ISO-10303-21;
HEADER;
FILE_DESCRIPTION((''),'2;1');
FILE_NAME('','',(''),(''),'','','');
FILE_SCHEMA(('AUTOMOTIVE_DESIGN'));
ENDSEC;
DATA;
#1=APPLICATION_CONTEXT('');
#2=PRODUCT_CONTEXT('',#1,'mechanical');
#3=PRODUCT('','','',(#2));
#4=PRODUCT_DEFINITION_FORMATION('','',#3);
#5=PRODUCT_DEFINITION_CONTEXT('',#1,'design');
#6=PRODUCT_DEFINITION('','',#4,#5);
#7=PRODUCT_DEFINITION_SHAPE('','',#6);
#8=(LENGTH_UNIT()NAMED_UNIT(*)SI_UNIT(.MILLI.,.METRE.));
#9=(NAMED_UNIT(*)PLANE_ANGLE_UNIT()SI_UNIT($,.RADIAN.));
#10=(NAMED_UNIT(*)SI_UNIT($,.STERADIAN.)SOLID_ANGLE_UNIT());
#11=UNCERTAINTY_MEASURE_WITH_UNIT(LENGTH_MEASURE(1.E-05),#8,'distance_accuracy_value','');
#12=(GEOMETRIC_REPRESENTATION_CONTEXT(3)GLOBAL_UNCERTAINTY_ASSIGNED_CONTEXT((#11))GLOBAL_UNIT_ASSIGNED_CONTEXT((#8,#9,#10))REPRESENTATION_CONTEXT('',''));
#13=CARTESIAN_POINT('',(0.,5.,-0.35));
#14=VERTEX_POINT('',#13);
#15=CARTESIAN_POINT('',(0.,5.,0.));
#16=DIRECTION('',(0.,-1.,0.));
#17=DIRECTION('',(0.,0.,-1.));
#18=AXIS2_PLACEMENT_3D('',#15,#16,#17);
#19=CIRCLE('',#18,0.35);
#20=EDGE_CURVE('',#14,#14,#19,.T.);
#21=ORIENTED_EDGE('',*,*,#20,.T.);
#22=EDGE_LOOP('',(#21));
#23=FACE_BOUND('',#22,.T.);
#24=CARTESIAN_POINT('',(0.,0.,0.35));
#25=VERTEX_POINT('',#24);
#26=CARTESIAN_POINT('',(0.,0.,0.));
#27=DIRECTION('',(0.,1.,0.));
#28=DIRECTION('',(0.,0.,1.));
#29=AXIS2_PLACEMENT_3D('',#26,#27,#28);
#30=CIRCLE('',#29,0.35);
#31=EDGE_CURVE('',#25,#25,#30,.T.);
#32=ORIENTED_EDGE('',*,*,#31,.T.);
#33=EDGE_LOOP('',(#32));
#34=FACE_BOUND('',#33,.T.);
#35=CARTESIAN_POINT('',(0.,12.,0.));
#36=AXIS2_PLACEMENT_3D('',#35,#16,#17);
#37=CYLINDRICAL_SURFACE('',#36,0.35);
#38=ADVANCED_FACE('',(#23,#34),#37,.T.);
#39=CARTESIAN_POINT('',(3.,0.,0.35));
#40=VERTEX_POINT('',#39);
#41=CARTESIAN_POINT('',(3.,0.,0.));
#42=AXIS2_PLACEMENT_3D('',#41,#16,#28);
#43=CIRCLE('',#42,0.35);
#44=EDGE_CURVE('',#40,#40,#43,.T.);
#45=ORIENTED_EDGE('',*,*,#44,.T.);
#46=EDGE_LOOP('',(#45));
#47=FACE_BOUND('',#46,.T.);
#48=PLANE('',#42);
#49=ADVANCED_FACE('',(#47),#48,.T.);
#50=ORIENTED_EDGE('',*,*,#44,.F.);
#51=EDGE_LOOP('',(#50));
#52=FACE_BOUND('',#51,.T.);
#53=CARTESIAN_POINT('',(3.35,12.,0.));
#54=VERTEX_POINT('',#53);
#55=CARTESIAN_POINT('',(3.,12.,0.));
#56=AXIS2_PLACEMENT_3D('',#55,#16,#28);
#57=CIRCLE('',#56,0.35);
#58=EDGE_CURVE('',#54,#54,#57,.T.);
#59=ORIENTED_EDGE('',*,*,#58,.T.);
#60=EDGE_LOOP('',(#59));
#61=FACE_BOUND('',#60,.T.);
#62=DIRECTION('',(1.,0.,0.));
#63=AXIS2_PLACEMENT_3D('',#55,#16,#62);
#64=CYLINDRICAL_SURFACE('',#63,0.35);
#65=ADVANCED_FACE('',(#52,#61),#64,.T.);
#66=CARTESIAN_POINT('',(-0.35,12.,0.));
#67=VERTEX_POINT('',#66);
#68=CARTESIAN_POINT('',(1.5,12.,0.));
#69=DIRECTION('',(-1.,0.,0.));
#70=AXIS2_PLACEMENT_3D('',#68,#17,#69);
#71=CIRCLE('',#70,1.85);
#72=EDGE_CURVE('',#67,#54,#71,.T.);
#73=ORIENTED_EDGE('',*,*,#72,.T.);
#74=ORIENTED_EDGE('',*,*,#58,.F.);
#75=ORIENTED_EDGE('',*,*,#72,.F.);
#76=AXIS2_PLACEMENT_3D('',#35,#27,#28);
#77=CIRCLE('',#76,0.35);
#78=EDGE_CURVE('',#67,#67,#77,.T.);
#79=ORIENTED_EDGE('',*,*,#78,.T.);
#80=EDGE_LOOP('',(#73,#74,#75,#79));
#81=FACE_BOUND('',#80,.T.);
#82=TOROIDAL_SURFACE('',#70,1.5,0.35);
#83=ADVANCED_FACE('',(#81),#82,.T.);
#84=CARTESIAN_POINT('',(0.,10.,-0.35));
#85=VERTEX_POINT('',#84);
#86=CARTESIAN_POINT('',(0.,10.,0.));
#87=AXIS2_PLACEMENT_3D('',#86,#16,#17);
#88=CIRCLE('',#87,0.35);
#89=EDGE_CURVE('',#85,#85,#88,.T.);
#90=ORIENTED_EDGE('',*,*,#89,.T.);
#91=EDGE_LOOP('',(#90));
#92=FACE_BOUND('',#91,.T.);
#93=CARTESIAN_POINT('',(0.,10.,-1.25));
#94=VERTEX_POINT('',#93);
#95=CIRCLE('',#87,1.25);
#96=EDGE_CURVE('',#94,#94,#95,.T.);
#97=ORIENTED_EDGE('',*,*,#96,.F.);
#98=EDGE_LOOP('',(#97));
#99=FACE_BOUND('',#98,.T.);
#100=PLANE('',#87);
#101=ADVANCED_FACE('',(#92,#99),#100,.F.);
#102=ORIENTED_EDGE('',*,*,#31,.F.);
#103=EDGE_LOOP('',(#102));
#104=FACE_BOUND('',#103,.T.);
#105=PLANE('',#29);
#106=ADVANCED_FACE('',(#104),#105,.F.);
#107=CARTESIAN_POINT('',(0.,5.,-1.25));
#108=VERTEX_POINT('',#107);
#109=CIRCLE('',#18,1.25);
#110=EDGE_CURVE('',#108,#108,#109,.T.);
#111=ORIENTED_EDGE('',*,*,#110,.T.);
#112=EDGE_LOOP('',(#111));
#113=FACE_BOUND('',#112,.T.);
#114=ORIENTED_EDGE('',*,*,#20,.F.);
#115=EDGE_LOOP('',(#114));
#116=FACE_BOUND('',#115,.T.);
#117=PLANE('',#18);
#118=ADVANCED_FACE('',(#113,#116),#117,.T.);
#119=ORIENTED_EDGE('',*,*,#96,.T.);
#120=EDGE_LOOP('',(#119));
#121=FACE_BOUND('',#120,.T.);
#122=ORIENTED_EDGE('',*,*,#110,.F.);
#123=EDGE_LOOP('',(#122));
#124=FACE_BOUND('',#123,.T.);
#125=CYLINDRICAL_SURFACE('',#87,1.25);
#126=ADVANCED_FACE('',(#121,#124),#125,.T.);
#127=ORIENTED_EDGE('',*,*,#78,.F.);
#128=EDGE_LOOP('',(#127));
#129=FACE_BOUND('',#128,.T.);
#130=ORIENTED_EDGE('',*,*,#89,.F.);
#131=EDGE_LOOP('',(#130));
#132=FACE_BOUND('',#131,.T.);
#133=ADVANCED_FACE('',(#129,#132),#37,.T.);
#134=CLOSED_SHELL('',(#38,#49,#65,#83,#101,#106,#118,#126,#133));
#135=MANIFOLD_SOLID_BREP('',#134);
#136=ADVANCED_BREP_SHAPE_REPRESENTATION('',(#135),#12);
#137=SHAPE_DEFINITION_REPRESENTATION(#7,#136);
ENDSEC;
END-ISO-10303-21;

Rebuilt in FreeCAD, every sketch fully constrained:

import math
import FreeCAD as App
import Part
import Sketcher

V = App.Vector

doc = App.newDocument("Part")
params = doc.addObject("Spreadsheet::Sheet", "Params")
for row, (alias, value) in enumerate([
    ("sketch1_diameter", "0.7 mm"),
    ("sketch2_radius", "1.5 mm"),
    ("sketch2_height", "12 mm"),
    ("sketch3_diameter", "2.5 mm"),
    ("pad1_length", "5 mm"),
], start=1):
    params.set(f"A{row}", alias)
    params.set(f"B{row}", "=" + value)
    params.setAlias(f"B{row}", alias)

body = doc.addObject("PartDesign::Body", "Body")

# Sketch on XZ plane
sketch1 = body.newObject("Sketcher::SketchObject", "Sketch")
sketch1.AttachmentSupport = (doc.getObject("XZ_Plane"), [""])
sketch1.MapMode = "FlatFace"
sketch1.addGeometry(Part.Circle(V(0, 0, 0), V(0, 0, 1), 0.35), False)
sketch1.addConstraint(Sketcher.Constraint("Coincident", 0, 3, -1, 1))
sketch1.addConstraint(Sketcher.Constraint("Diameter", 0, 0.7))
sketch1.setExpression("Constraints[1]", "Params.sketch1_diameter")

# Sketch on XY plane
sketch2 = body.newObject("Sketcher::SketchObject", "Sketch001")
sketch2.AttachmentSupport = (doc.getObject("XY_Plane"), [""])
sketch2.MapMode = "FlatFace"
sketch2.addGeometry(Part.LineSegment(V(0, 0, 0), V(0, 12, 0)), False)
sketch2.addGeometry(Part.ArcOfCircle(Part.Circle(V(1.5, 12, 0), V(0, 0, 1), 1.5), math.radians(0), math.radians(180)), False)
sketch2.addGeometry(Part.LineSegment(V(3, 12, 0), V(3, 0, 0)), False)
sketch2.addConstraint(Sketcher.Constraint("Tangent", 0, 2, 1, 2))
sketch2.addConstraint(Sketcher.Constraint("Tangent", 1, 1, 2, 1))
sketch2.addConstraint(Sketcher.Constraint("Vertical", 0))
sketch2.addConstraint(Sketcher.Constraint("Vertical", 2))
sketch2.addConstraint(Sketcher.Constraint("Coincident", 0, 1, -1, 1))
sketch2.addConstraint(Sketcher.Constraint("PointOnObject", 2, 2, -1))
sketch2.addConstraint(Sketcher.Constraint("Radius", 1, 1.5))
sketch2.addConstraint(Sketcher.Constraint("DistanceY", 0, 1, 0, 2, 12.0))
sketch2.setExpression("Constraints[6]", "Params.sketch2_radius")
sketch2.setExpression("Constraints[7]", "Params.sketch2_height")
doc.recompute()

additivepipe = body.newObject("PartDesign::AdditivePipe", "AdditivePipe")
additivepipe.Profile = sketch1
additivepipe.Spine = (sketch2, ["Edge1", "Edge2", "Edge3"])

# Sketch on XZ plane
sketch3 = body.newObject("Sketcher::SketchObject", "Sketch002")
sketch3.AttachmentSupport = (doc.getObject("XZ_Plane"), [""])
sketch3.MapMode = "FlatFace"
sketch3.AttachmentOffset = App.Placement(V(0, 0, -5), App.Rotation())
sketch3.addGeometry(Part.Circle(V(0, 0, 0), V(0, 0, 1), 1.2), False)
sketch3.addConstraint(Sketcher.Constraint("Coincident", 0, 3, -1, 1))
sketch3.addConstraint(Sketcher.Constraint("Diameter", 0, 2.5))
sketch3.setExpression("Constraints[1]", "Params.sketch3_diameter")
pad1 = body.newObject("PartDesign::Pad", "Pad")
pad1.Profile = sketch3
pad1.setExpression("Length", "Params.pad1_length")
pad1.Reversed = True

doc.recompute()
